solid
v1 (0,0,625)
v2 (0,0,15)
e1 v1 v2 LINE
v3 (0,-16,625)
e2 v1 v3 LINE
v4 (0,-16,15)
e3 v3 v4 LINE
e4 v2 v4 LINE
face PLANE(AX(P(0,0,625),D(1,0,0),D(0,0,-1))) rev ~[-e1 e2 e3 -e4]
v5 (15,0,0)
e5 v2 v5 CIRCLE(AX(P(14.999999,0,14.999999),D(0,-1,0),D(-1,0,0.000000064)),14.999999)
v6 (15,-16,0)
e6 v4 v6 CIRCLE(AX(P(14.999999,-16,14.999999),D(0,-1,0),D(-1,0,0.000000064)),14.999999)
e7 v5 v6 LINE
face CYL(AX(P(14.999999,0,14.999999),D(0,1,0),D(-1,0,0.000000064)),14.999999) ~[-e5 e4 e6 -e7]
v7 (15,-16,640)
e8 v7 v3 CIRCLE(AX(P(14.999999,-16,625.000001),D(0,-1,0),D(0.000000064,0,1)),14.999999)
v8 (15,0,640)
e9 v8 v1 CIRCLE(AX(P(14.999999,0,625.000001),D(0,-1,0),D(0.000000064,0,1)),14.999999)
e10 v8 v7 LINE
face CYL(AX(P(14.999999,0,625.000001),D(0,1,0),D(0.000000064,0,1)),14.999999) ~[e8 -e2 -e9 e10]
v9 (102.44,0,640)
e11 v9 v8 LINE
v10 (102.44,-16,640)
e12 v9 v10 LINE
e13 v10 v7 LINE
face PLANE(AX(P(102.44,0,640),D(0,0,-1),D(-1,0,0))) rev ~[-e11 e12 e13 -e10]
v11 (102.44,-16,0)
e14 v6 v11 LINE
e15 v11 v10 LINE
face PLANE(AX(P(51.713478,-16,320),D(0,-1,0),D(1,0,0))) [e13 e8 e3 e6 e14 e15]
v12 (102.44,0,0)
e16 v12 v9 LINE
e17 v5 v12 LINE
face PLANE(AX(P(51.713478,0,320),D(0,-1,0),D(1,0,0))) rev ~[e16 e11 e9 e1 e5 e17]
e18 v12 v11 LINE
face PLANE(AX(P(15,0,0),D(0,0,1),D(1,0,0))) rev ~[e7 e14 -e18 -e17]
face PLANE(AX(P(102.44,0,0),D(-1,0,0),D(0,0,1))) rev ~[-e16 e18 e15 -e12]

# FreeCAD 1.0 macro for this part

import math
import FreeCAD as App
import Part
import Sketcher
from FreeCAD import Vector

doc = App.newDocument("Part")
body = doc.addObject("PartDesign::Body", "Body")

sketch1 = body.newObject("Sketcher::SketchObject", "Sketch")
sketch1.AttachmentSupport = (doc.getObject("XZ_Plane"), [""])
sketch1.MapMode = "FlatFace"
sketch1.addGeometry(Part.LineSegment(Vector(102.44, 640, 0), Vector(15, 640, 0)), False)
sketch1.addGeometry(Part.ArcOfCircle(Part.Circle(Vector(14.999999, 625.000001, 0), Vector(0, 0, 1), 14.999999), math.radians(89.999996), math.radians(180.000004)), False)
sketch1.addGeometry(Part.LineSegment(Vector(0, 625, 0), Vector(0, 15, 0)), False)
sketch1.addGeometry(Part.ArcOfCircle(Part.Circle(Vector(14.999999, 14.999999, 0), Vector(0, 0, 1), 14.999999), math.radians(179.999996), math.radians(270.000004)), False)
sketch1.addGeometry(Part.LineSegment(Vector(15, 0, 0), Vector(102.44, 0, 0)), False)
sketch1.addGeometry(Part.LineSegment(Vector(102.44, 0, 0), Vector(102.44, 640, 0)), False)
sketch1.addConstraint(Sketcher.Constraint("Tangent", 0, 2, 1, 1))
sketch1.addConstraint(Sketcher.Constraint("Tangent", 1, 2, 2, 1))
sketch1.addConstraint(Sketcher.Constraint("Tangent", 2, 2, 3, 1))
sketch1.addConstraint(Sketcher.Constraint("Tangent", 3, 2, 4, 1))
sketch1.addConstraint(Sketcher.Constraint("Coincident", 4, 2, 5, 1))
sketch1.addConstraint(Sketcher.Constraint("Coincident", 5, 2, 0, 1))
sketch1.addConstraint(Sketcher.Constraint("Horizontal", 0))
sketch1.addConstraint(Sketcher.Constraint("Vertical", 2))
sketch1.addConstraint(Sketcher.Constraint("Horizontal", 4))
sketch1.addConstraint(Sketcher.Constraint("Vertical", 5))
sketch1.addConstraint(Sketcher.Constraint("Equal", 1, 3))
sketch1.addConstraint(Sketcher.Constraint("PointOnObject", 1, 2, -2))
sketch1.addConstraint(Sketcher.Constraint("PointOnObject", 3, 2, -1))
sketch1.addConstraint(Sketcher.Constraint("Radius", 1, 14.999999))
sketch1.addConstraint(Sketcher.Constraint("DistanceY", 2, 2, 2, 1, 610.0))
sketch1.addConstraint(Sketcher.Constraint("DistanceX", 0, 2, 0, 1, 87.44))
pad1 = body.newObject("PartDesign::Pad", "Pad")
pad1.Profile = sketch1
pad1.Length = 16

doc.recompute()
